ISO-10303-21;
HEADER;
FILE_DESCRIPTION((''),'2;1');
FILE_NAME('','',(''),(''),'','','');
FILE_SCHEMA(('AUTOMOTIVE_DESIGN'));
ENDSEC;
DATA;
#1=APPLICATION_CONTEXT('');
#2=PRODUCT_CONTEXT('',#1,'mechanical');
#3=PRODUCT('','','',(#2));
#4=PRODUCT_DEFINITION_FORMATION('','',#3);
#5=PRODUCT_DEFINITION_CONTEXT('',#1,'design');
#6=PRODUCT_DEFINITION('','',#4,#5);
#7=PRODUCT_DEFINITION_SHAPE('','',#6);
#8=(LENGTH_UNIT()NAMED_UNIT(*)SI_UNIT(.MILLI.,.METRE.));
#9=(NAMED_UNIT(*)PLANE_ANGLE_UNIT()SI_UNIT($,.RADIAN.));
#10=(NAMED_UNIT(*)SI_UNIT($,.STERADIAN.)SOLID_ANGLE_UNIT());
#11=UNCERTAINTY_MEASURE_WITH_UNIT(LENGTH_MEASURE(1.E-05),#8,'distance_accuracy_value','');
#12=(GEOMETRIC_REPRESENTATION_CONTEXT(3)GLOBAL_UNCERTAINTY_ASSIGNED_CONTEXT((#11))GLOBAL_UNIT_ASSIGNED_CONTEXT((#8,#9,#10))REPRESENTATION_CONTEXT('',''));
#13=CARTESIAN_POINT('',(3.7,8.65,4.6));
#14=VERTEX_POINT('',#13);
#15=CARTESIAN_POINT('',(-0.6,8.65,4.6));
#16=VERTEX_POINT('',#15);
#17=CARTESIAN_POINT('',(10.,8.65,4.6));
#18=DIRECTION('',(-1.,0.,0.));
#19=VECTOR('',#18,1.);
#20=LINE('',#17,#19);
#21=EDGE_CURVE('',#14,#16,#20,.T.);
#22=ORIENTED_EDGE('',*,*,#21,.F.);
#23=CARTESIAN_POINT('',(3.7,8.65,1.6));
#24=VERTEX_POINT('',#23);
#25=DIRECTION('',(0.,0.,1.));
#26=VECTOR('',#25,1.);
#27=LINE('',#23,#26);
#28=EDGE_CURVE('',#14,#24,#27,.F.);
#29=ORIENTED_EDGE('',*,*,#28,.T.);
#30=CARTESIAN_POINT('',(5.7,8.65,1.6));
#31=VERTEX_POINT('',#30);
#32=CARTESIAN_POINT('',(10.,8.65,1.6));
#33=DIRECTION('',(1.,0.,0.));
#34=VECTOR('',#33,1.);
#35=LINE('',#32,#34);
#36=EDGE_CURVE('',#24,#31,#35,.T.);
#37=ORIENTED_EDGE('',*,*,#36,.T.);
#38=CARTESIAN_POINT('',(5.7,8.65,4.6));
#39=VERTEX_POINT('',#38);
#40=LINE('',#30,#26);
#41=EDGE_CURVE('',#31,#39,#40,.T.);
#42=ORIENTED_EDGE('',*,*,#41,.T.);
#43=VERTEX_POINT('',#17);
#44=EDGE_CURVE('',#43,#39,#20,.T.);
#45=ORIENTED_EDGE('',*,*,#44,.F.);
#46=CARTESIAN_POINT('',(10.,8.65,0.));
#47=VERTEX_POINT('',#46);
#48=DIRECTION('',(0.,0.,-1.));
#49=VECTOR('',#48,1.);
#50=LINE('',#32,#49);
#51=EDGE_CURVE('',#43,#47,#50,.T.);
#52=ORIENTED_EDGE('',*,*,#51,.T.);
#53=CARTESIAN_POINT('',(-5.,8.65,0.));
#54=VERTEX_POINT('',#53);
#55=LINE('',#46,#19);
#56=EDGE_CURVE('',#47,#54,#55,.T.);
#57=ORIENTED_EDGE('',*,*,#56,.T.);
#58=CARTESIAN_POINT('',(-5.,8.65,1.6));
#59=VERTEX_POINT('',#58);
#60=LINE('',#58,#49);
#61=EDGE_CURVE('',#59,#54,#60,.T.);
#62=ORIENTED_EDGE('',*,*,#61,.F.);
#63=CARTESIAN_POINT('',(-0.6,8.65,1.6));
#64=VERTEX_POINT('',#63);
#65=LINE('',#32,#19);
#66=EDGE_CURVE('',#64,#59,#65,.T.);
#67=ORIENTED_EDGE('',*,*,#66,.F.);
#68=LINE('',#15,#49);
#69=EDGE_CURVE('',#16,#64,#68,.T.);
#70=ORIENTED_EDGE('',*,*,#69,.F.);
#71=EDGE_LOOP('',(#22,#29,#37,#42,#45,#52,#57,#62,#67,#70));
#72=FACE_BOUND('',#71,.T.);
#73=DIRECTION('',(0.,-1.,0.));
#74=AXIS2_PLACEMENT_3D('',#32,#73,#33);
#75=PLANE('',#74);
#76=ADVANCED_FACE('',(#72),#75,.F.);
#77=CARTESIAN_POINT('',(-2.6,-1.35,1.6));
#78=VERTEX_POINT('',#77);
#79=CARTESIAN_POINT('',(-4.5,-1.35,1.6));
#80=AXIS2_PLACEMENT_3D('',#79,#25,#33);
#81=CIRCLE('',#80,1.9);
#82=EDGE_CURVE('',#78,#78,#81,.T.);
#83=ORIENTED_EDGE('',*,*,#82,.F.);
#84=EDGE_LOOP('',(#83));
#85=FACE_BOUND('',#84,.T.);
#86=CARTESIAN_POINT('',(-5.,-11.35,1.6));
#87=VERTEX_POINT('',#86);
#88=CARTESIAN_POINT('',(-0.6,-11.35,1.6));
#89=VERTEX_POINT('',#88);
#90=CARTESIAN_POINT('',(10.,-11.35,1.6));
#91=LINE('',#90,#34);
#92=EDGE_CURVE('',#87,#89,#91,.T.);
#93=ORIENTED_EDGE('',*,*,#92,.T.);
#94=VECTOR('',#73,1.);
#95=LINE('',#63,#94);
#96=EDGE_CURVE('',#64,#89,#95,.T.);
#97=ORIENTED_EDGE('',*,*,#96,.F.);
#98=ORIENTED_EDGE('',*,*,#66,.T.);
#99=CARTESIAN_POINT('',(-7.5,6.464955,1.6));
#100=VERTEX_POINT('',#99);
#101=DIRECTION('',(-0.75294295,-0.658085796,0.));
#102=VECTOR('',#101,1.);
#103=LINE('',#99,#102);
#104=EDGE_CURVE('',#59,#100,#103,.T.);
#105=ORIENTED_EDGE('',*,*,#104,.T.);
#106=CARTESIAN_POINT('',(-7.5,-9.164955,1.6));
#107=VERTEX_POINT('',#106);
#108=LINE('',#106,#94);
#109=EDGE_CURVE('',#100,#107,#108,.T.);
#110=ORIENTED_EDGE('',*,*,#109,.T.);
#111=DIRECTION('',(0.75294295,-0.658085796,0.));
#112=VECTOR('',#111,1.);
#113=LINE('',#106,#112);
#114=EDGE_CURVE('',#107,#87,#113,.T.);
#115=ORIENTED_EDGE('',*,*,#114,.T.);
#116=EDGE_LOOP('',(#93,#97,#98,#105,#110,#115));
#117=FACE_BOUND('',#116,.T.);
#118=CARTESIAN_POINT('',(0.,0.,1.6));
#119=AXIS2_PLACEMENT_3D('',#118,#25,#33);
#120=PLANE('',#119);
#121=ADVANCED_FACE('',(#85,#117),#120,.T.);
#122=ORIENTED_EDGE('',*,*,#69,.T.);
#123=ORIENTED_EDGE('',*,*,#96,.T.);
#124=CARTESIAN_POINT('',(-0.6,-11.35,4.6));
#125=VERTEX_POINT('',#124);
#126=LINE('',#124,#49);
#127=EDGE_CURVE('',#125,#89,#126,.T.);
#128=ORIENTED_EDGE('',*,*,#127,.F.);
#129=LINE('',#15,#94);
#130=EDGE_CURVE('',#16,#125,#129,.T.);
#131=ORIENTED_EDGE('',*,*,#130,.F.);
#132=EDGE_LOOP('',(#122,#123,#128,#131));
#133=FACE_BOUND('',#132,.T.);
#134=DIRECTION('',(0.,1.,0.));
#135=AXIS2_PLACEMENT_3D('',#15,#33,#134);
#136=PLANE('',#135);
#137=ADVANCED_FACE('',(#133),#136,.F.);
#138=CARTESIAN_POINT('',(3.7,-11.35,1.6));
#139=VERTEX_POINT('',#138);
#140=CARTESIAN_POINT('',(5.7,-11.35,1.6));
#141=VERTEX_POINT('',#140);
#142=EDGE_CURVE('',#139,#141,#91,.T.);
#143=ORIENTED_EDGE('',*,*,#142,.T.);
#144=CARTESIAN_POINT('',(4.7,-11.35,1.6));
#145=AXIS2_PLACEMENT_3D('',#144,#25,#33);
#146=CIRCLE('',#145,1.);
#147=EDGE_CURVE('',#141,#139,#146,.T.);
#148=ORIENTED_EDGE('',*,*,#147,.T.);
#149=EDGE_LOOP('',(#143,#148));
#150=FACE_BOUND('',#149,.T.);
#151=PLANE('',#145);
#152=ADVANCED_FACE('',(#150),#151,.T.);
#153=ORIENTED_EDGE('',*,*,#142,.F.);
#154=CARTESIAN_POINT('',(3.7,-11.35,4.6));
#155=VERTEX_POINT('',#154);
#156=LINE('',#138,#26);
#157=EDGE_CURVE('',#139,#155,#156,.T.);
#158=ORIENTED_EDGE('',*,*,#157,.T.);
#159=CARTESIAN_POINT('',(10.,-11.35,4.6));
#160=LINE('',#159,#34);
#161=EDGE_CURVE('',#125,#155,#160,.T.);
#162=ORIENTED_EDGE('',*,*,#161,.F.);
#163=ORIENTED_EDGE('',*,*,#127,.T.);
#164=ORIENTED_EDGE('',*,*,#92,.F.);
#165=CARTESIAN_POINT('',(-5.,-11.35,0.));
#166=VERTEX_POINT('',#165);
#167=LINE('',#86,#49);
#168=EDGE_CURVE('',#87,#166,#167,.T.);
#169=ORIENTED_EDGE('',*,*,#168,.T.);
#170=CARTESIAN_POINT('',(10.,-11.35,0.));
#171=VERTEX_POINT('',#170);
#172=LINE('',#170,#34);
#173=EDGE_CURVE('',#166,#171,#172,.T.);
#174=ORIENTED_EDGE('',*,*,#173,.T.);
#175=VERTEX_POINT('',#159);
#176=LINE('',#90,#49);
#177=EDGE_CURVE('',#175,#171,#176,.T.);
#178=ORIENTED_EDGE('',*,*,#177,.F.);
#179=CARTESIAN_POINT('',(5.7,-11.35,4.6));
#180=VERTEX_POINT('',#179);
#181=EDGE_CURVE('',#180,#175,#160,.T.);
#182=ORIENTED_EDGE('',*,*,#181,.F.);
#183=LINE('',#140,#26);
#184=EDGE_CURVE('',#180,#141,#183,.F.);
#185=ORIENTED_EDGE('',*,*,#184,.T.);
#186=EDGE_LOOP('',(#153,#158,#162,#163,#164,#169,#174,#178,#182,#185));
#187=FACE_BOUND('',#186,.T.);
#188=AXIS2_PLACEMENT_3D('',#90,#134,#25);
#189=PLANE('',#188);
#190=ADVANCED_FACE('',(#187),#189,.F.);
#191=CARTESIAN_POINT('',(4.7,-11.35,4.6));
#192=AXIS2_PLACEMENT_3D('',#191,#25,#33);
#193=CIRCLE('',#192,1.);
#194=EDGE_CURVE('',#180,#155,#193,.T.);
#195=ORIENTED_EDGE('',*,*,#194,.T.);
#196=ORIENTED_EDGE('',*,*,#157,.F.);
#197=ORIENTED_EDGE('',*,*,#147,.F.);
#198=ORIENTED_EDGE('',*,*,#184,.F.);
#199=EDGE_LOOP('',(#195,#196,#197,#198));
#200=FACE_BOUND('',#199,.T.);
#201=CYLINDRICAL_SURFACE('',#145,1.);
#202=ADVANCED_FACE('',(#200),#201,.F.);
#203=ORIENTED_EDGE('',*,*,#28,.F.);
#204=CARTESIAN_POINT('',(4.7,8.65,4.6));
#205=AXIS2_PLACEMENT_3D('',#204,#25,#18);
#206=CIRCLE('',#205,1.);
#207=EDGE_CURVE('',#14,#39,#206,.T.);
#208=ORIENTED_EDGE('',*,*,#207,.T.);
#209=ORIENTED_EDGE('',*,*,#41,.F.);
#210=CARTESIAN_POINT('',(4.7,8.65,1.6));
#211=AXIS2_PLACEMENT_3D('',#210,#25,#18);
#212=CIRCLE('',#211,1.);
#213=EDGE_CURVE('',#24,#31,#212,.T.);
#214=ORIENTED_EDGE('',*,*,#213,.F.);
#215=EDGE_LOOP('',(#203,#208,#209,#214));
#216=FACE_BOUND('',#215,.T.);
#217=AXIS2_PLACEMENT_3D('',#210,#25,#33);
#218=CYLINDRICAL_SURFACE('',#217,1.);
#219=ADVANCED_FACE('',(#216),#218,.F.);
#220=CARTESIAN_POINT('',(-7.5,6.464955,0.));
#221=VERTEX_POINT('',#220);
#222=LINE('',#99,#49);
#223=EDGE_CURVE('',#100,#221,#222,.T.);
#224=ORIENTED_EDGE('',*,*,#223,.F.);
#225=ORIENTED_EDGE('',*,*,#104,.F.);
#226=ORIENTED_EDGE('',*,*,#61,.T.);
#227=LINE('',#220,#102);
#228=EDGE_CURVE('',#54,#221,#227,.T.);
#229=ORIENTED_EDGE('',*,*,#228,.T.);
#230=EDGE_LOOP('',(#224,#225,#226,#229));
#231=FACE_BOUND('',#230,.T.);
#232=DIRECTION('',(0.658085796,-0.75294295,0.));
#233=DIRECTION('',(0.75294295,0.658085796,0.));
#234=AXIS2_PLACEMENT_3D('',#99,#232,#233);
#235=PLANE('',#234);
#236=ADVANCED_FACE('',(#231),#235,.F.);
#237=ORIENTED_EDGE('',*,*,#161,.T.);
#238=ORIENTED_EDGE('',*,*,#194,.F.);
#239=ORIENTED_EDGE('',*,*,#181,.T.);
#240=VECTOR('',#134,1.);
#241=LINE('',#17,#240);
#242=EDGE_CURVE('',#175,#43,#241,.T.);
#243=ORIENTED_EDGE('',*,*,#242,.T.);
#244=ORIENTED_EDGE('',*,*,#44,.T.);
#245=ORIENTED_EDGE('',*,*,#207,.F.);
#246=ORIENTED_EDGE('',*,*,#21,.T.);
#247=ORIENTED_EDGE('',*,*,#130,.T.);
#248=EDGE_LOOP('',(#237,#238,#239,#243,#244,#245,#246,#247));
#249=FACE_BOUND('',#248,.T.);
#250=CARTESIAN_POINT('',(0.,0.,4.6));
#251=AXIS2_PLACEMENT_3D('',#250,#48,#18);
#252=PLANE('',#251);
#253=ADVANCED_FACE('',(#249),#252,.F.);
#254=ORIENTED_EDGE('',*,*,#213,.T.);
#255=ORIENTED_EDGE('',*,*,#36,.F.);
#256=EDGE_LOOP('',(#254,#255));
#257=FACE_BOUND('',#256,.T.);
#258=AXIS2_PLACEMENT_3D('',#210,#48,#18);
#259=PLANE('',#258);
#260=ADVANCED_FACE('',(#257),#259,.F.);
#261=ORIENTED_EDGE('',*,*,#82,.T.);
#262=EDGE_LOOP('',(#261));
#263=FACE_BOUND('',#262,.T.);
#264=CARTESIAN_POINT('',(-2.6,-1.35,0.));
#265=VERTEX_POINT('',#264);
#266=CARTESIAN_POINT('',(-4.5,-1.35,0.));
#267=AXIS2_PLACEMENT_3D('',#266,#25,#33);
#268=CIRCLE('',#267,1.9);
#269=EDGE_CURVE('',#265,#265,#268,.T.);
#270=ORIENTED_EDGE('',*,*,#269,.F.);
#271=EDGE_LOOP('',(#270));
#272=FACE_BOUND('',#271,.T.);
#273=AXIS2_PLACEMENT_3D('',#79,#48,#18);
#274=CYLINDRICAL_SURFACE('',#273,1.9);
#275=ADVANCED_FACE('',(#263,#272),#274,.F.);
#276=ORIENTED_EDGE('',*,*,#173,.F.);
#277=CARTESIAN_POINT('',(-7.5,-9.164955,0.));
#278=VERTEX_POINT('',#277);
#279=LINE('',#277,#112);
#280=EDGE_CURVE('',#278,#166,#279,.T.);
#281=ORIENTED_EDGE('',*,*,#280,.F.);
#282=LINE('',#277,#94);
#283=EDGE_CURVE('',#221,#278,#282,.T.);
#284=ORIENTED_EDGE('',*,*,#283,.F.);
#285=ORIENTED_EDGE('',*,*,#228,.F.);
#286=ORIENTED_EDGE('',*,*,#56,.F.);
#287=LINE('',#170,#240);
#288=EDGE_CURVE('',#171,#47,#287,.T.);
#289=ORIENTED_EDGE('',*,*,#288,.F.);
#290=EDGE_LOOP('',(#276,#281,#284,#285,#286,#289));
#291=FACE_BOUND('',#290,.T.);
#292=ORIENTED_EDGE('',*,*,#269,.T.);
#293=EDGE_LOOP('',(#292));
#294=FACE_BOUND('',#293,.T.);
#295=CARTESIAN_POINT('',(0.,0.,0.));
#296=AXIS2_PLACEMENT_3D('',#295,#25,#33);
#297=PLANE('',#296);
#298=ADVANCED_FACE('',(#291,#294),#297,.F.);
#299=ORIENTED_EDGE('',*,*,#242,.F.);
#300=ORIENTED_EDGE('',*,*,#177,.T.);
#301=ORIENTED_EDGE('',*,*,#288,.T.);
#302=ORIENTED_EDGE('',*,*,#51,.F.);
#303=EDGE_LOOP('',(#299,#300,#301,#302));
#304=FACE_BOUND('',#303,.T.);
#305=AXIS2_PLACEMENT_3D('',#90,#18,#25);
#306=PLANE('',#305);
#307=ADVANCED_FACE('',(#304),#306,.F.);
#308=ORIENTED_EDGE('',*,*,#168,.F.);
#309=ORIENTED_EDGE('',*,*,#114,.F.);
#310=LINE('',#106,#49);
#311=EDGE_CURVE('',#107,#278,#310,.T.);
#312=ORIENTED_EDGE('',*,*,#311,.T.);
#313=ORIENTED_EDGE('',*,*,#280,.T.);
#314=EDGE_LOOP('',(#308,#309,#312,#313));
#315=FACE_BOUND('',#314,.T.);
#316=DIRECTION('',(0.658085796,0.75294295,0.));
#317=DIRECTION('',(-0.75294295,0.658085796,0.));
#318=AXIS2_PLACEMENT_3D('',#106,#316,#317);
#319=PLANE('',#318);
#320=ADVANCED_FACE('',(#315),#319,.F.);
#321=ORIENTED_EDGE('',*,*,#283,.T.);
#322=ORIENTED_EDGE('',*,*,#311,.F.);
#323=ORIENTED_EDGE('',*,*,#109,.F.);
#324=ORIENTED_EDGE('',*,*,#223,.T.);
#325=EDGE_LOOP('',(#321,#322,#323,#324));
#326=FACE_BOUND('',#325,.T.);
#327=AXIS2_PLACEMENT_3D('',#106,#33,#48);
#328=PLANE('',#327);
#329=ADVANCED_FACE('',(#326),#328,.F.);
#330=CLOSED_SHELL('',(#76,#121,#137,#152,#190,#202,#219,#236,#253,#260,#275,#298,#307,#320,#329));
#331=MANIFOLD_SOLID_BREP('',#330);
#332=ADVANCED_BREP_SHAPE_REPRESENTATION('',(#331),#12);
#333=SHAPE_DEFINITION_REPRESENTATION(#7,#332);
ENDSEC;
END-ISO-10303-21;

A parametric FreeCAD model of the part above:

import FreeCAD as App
import Part
import Sketcher

V = App.Vector


def add_polygon(sketch, points):
    """Adds a closed chain of lines whose ends are joined by coincident constraints."""
    first, n = sketch.GeometryCount, len(points)
    for a, b in zip(points, points[1:] + points[:1]):
        sketch.addGeometry(Part.LineSegment(App.Vector(*a, 0), App.Vector(*b, 0)), False)
    for i in range(n):
        sketch.addConstraint(Sketcher.Constraint("Coincident", first + i, 2, first + (i + 1) % n, 1))

doc = App.newDocument("Part")
params = doc.addObject("Spreadsheet::Sheet", "Params")
for row, (alias, value) in enumerate([
    ("sketch1_diameter", "3.8 mm"),
    ("sketch1_width", "15 mm"),
    ("sketch1_height", "20 mm"),
    ("pad1_length", "1.6 mm"),
    ("sketch2_height", "20 mm"),
    ("sketch2_width", "10.6 mm"),
    ("pad2_length", "3 mm"),
    ("sketch3_diameter", "2 mm"),
    ("pocket1_length", "3 mm"),
], start=1):
    params.set(f"A{row}", alias)
    params.set(f"B{row}", "=" + value)
    params.setAlias(f"B{row}", alias)

body = doc.addObject("PartDesign::Body", "Body")

sketch1 = body.newObject("Sketcher::SketchObject", "Sketch")
sketch1.AttachmentSupport = (doc.getObject("XY_Plane"), [""])
sketch1.MapMode = "FlatFace"
add_polygon(sketch1, [(-5, 8.7), (-7.5, 6.5), (-7.5, -9.2), (-5, -11.3), (10, -11.3), (10, 8.7)])
sketch1.addGeometry(Part.Circle(V(-4.5, -1.4, 0), V(0, 0, 1), 1.9), False)
sketch1.addConstraint([
    Sketcher.Constraint("Vertical", 1),
    Sketcher.Constraint("Horizontal", 3),
    Sketcher.Constraint("Vertical", 4),
    Sketcher.Constraint("Horizontal", 5),
    Sketcher.Constraint("Vertical", 2, 2, 5, 2),
    Sketcher.Constraint("Equal", 0, 2),
    Sketcher.Constraint("Diameter", 6, 3.8),
    Sketcher.Constraint("DistanceX", 3, 1, 3, 2, 15.0),
    Sketcher.Constraint("DistanceY", 4, 1, 4, 2, 20.0),
    Sketcher.Constraint("DistanceX", 2, 2, -1, 1, 5.0),
    Sketcher.Constraint("DistanceX", 0, 2, 6, 3, 3.0),
    Sketcher.Constraint("DistanceY", 2, 2, 6, 3, 10.0),
    Sketcher.Constraint("DistanceX", 6, 3, -1, 1, 4.5),
    Sketcher.Constraint("DistanceY", 6, 3, -1, 1, 1.35),
    Sketcher.Constraint("DistanceY", 1, 2, 1, 1, 15.629909),
])
sketch1.setExpression("Constraints[12]", "Params.sketch1_diameter")
sketch1.setExpression("Constraints[13]", "Params.sketch1_width")
sketch1.setExpression("Constraints[14]", "Params.sketch1_height")
pad1 = body.newObject("PartDesign::Pad", "Pad")
pad1.Profile = sketch1
pad1.setExpression("Length", "Params.pad1_length")

sketch2 = body.newObject("Sketcher::SketchObject", "Sketch001")
sketch2.AttachmentSupport = (doc.getObject("XY_Plane"), [""])
sketch2.MapMode = "FlatFace"
sketch2.AttachmentOffset = App.Placement(V(0, 0, 1.6), App.Rotation())
add_polygon(sketch2, [(-1, 9), (-1, -11), (10, -11), (10, 9)])
sketch2.addConstraint([
    Sketcher.Constraint("Vertical", 0),
    Sketcher.Constraint("Horizontal", 1),
    Sketcher.Constraint("Vertical", 2),
    Sketcher.Constraint("Horizontal", 3),
    Sketcher.Constraint("DistanceY", 0, 2, 0, 1, 20.0),
    Sketcher.Constraint("DistanceX", 1, 1, 1, 2, 10.6),
    Sketcher.Constraint("DistanceX", -1, 1, 1, 2, 10.0),
    Sketcher.Constraint("DistanceY", 0, 2, -1, 1, 11.35),
])
sketch2.setExpression("Constraints[8]", "Params.sketch2_height")
sketch2.setExpression("Constraints[9]", "Params.sketch2_width")
pad2 = body.newObject("PartDesign::Pad", "Pad001")
pad2.Profile = sketch2
pad2.setExpression("Length", "Params.pad2_length")

sketch3 = body.newObject("Sketcher::SketchObject", "Sketch002")
sketch3.AttachmentSupport = (doc.getObject("XY_Plane"), [""])
sketch3.MapMode = "FlatFace"
sketch3.AttachmentOffset = App.Placement(V(0, 0, 4.6), App.Rotation())
sketch3.addGeometry([
    Part.Circle(V(4.7, -11.3, 0), V(0, 0, 1), 1),
    Part.Circle(V(4.7, 8.7, 0), V(0, 0, 1), 1),
], False)
sketch3.addConstraint([
    Sketcher.Constraint("Equal", 0, 1),
    Sketcher.Constraint("Vertical", 0, 3, 1, 3),
    Sketcher.Constraint("Diameter", 0, 2.0),
    Sketcher.Constraint("DistanceY", 0, 3, 1, 3, 20.0),
    Sketcher.Constraint("DistanceX", -1, 1, 0, 3, 4.7),
    Sketcher.Constraint("DistanceY", 0, 3, -1, 1, 11.35),
])
sketch3.setExpression("Constraints[2]", "Params.sketch3_diameter")
pocket1 = body.newObject("PartDesign::Pocket", "Pocket")
pocket1.Profile = sketch3
pocket1.setExpression("Length", "Params.pocket1_length")

doc.recompute()
